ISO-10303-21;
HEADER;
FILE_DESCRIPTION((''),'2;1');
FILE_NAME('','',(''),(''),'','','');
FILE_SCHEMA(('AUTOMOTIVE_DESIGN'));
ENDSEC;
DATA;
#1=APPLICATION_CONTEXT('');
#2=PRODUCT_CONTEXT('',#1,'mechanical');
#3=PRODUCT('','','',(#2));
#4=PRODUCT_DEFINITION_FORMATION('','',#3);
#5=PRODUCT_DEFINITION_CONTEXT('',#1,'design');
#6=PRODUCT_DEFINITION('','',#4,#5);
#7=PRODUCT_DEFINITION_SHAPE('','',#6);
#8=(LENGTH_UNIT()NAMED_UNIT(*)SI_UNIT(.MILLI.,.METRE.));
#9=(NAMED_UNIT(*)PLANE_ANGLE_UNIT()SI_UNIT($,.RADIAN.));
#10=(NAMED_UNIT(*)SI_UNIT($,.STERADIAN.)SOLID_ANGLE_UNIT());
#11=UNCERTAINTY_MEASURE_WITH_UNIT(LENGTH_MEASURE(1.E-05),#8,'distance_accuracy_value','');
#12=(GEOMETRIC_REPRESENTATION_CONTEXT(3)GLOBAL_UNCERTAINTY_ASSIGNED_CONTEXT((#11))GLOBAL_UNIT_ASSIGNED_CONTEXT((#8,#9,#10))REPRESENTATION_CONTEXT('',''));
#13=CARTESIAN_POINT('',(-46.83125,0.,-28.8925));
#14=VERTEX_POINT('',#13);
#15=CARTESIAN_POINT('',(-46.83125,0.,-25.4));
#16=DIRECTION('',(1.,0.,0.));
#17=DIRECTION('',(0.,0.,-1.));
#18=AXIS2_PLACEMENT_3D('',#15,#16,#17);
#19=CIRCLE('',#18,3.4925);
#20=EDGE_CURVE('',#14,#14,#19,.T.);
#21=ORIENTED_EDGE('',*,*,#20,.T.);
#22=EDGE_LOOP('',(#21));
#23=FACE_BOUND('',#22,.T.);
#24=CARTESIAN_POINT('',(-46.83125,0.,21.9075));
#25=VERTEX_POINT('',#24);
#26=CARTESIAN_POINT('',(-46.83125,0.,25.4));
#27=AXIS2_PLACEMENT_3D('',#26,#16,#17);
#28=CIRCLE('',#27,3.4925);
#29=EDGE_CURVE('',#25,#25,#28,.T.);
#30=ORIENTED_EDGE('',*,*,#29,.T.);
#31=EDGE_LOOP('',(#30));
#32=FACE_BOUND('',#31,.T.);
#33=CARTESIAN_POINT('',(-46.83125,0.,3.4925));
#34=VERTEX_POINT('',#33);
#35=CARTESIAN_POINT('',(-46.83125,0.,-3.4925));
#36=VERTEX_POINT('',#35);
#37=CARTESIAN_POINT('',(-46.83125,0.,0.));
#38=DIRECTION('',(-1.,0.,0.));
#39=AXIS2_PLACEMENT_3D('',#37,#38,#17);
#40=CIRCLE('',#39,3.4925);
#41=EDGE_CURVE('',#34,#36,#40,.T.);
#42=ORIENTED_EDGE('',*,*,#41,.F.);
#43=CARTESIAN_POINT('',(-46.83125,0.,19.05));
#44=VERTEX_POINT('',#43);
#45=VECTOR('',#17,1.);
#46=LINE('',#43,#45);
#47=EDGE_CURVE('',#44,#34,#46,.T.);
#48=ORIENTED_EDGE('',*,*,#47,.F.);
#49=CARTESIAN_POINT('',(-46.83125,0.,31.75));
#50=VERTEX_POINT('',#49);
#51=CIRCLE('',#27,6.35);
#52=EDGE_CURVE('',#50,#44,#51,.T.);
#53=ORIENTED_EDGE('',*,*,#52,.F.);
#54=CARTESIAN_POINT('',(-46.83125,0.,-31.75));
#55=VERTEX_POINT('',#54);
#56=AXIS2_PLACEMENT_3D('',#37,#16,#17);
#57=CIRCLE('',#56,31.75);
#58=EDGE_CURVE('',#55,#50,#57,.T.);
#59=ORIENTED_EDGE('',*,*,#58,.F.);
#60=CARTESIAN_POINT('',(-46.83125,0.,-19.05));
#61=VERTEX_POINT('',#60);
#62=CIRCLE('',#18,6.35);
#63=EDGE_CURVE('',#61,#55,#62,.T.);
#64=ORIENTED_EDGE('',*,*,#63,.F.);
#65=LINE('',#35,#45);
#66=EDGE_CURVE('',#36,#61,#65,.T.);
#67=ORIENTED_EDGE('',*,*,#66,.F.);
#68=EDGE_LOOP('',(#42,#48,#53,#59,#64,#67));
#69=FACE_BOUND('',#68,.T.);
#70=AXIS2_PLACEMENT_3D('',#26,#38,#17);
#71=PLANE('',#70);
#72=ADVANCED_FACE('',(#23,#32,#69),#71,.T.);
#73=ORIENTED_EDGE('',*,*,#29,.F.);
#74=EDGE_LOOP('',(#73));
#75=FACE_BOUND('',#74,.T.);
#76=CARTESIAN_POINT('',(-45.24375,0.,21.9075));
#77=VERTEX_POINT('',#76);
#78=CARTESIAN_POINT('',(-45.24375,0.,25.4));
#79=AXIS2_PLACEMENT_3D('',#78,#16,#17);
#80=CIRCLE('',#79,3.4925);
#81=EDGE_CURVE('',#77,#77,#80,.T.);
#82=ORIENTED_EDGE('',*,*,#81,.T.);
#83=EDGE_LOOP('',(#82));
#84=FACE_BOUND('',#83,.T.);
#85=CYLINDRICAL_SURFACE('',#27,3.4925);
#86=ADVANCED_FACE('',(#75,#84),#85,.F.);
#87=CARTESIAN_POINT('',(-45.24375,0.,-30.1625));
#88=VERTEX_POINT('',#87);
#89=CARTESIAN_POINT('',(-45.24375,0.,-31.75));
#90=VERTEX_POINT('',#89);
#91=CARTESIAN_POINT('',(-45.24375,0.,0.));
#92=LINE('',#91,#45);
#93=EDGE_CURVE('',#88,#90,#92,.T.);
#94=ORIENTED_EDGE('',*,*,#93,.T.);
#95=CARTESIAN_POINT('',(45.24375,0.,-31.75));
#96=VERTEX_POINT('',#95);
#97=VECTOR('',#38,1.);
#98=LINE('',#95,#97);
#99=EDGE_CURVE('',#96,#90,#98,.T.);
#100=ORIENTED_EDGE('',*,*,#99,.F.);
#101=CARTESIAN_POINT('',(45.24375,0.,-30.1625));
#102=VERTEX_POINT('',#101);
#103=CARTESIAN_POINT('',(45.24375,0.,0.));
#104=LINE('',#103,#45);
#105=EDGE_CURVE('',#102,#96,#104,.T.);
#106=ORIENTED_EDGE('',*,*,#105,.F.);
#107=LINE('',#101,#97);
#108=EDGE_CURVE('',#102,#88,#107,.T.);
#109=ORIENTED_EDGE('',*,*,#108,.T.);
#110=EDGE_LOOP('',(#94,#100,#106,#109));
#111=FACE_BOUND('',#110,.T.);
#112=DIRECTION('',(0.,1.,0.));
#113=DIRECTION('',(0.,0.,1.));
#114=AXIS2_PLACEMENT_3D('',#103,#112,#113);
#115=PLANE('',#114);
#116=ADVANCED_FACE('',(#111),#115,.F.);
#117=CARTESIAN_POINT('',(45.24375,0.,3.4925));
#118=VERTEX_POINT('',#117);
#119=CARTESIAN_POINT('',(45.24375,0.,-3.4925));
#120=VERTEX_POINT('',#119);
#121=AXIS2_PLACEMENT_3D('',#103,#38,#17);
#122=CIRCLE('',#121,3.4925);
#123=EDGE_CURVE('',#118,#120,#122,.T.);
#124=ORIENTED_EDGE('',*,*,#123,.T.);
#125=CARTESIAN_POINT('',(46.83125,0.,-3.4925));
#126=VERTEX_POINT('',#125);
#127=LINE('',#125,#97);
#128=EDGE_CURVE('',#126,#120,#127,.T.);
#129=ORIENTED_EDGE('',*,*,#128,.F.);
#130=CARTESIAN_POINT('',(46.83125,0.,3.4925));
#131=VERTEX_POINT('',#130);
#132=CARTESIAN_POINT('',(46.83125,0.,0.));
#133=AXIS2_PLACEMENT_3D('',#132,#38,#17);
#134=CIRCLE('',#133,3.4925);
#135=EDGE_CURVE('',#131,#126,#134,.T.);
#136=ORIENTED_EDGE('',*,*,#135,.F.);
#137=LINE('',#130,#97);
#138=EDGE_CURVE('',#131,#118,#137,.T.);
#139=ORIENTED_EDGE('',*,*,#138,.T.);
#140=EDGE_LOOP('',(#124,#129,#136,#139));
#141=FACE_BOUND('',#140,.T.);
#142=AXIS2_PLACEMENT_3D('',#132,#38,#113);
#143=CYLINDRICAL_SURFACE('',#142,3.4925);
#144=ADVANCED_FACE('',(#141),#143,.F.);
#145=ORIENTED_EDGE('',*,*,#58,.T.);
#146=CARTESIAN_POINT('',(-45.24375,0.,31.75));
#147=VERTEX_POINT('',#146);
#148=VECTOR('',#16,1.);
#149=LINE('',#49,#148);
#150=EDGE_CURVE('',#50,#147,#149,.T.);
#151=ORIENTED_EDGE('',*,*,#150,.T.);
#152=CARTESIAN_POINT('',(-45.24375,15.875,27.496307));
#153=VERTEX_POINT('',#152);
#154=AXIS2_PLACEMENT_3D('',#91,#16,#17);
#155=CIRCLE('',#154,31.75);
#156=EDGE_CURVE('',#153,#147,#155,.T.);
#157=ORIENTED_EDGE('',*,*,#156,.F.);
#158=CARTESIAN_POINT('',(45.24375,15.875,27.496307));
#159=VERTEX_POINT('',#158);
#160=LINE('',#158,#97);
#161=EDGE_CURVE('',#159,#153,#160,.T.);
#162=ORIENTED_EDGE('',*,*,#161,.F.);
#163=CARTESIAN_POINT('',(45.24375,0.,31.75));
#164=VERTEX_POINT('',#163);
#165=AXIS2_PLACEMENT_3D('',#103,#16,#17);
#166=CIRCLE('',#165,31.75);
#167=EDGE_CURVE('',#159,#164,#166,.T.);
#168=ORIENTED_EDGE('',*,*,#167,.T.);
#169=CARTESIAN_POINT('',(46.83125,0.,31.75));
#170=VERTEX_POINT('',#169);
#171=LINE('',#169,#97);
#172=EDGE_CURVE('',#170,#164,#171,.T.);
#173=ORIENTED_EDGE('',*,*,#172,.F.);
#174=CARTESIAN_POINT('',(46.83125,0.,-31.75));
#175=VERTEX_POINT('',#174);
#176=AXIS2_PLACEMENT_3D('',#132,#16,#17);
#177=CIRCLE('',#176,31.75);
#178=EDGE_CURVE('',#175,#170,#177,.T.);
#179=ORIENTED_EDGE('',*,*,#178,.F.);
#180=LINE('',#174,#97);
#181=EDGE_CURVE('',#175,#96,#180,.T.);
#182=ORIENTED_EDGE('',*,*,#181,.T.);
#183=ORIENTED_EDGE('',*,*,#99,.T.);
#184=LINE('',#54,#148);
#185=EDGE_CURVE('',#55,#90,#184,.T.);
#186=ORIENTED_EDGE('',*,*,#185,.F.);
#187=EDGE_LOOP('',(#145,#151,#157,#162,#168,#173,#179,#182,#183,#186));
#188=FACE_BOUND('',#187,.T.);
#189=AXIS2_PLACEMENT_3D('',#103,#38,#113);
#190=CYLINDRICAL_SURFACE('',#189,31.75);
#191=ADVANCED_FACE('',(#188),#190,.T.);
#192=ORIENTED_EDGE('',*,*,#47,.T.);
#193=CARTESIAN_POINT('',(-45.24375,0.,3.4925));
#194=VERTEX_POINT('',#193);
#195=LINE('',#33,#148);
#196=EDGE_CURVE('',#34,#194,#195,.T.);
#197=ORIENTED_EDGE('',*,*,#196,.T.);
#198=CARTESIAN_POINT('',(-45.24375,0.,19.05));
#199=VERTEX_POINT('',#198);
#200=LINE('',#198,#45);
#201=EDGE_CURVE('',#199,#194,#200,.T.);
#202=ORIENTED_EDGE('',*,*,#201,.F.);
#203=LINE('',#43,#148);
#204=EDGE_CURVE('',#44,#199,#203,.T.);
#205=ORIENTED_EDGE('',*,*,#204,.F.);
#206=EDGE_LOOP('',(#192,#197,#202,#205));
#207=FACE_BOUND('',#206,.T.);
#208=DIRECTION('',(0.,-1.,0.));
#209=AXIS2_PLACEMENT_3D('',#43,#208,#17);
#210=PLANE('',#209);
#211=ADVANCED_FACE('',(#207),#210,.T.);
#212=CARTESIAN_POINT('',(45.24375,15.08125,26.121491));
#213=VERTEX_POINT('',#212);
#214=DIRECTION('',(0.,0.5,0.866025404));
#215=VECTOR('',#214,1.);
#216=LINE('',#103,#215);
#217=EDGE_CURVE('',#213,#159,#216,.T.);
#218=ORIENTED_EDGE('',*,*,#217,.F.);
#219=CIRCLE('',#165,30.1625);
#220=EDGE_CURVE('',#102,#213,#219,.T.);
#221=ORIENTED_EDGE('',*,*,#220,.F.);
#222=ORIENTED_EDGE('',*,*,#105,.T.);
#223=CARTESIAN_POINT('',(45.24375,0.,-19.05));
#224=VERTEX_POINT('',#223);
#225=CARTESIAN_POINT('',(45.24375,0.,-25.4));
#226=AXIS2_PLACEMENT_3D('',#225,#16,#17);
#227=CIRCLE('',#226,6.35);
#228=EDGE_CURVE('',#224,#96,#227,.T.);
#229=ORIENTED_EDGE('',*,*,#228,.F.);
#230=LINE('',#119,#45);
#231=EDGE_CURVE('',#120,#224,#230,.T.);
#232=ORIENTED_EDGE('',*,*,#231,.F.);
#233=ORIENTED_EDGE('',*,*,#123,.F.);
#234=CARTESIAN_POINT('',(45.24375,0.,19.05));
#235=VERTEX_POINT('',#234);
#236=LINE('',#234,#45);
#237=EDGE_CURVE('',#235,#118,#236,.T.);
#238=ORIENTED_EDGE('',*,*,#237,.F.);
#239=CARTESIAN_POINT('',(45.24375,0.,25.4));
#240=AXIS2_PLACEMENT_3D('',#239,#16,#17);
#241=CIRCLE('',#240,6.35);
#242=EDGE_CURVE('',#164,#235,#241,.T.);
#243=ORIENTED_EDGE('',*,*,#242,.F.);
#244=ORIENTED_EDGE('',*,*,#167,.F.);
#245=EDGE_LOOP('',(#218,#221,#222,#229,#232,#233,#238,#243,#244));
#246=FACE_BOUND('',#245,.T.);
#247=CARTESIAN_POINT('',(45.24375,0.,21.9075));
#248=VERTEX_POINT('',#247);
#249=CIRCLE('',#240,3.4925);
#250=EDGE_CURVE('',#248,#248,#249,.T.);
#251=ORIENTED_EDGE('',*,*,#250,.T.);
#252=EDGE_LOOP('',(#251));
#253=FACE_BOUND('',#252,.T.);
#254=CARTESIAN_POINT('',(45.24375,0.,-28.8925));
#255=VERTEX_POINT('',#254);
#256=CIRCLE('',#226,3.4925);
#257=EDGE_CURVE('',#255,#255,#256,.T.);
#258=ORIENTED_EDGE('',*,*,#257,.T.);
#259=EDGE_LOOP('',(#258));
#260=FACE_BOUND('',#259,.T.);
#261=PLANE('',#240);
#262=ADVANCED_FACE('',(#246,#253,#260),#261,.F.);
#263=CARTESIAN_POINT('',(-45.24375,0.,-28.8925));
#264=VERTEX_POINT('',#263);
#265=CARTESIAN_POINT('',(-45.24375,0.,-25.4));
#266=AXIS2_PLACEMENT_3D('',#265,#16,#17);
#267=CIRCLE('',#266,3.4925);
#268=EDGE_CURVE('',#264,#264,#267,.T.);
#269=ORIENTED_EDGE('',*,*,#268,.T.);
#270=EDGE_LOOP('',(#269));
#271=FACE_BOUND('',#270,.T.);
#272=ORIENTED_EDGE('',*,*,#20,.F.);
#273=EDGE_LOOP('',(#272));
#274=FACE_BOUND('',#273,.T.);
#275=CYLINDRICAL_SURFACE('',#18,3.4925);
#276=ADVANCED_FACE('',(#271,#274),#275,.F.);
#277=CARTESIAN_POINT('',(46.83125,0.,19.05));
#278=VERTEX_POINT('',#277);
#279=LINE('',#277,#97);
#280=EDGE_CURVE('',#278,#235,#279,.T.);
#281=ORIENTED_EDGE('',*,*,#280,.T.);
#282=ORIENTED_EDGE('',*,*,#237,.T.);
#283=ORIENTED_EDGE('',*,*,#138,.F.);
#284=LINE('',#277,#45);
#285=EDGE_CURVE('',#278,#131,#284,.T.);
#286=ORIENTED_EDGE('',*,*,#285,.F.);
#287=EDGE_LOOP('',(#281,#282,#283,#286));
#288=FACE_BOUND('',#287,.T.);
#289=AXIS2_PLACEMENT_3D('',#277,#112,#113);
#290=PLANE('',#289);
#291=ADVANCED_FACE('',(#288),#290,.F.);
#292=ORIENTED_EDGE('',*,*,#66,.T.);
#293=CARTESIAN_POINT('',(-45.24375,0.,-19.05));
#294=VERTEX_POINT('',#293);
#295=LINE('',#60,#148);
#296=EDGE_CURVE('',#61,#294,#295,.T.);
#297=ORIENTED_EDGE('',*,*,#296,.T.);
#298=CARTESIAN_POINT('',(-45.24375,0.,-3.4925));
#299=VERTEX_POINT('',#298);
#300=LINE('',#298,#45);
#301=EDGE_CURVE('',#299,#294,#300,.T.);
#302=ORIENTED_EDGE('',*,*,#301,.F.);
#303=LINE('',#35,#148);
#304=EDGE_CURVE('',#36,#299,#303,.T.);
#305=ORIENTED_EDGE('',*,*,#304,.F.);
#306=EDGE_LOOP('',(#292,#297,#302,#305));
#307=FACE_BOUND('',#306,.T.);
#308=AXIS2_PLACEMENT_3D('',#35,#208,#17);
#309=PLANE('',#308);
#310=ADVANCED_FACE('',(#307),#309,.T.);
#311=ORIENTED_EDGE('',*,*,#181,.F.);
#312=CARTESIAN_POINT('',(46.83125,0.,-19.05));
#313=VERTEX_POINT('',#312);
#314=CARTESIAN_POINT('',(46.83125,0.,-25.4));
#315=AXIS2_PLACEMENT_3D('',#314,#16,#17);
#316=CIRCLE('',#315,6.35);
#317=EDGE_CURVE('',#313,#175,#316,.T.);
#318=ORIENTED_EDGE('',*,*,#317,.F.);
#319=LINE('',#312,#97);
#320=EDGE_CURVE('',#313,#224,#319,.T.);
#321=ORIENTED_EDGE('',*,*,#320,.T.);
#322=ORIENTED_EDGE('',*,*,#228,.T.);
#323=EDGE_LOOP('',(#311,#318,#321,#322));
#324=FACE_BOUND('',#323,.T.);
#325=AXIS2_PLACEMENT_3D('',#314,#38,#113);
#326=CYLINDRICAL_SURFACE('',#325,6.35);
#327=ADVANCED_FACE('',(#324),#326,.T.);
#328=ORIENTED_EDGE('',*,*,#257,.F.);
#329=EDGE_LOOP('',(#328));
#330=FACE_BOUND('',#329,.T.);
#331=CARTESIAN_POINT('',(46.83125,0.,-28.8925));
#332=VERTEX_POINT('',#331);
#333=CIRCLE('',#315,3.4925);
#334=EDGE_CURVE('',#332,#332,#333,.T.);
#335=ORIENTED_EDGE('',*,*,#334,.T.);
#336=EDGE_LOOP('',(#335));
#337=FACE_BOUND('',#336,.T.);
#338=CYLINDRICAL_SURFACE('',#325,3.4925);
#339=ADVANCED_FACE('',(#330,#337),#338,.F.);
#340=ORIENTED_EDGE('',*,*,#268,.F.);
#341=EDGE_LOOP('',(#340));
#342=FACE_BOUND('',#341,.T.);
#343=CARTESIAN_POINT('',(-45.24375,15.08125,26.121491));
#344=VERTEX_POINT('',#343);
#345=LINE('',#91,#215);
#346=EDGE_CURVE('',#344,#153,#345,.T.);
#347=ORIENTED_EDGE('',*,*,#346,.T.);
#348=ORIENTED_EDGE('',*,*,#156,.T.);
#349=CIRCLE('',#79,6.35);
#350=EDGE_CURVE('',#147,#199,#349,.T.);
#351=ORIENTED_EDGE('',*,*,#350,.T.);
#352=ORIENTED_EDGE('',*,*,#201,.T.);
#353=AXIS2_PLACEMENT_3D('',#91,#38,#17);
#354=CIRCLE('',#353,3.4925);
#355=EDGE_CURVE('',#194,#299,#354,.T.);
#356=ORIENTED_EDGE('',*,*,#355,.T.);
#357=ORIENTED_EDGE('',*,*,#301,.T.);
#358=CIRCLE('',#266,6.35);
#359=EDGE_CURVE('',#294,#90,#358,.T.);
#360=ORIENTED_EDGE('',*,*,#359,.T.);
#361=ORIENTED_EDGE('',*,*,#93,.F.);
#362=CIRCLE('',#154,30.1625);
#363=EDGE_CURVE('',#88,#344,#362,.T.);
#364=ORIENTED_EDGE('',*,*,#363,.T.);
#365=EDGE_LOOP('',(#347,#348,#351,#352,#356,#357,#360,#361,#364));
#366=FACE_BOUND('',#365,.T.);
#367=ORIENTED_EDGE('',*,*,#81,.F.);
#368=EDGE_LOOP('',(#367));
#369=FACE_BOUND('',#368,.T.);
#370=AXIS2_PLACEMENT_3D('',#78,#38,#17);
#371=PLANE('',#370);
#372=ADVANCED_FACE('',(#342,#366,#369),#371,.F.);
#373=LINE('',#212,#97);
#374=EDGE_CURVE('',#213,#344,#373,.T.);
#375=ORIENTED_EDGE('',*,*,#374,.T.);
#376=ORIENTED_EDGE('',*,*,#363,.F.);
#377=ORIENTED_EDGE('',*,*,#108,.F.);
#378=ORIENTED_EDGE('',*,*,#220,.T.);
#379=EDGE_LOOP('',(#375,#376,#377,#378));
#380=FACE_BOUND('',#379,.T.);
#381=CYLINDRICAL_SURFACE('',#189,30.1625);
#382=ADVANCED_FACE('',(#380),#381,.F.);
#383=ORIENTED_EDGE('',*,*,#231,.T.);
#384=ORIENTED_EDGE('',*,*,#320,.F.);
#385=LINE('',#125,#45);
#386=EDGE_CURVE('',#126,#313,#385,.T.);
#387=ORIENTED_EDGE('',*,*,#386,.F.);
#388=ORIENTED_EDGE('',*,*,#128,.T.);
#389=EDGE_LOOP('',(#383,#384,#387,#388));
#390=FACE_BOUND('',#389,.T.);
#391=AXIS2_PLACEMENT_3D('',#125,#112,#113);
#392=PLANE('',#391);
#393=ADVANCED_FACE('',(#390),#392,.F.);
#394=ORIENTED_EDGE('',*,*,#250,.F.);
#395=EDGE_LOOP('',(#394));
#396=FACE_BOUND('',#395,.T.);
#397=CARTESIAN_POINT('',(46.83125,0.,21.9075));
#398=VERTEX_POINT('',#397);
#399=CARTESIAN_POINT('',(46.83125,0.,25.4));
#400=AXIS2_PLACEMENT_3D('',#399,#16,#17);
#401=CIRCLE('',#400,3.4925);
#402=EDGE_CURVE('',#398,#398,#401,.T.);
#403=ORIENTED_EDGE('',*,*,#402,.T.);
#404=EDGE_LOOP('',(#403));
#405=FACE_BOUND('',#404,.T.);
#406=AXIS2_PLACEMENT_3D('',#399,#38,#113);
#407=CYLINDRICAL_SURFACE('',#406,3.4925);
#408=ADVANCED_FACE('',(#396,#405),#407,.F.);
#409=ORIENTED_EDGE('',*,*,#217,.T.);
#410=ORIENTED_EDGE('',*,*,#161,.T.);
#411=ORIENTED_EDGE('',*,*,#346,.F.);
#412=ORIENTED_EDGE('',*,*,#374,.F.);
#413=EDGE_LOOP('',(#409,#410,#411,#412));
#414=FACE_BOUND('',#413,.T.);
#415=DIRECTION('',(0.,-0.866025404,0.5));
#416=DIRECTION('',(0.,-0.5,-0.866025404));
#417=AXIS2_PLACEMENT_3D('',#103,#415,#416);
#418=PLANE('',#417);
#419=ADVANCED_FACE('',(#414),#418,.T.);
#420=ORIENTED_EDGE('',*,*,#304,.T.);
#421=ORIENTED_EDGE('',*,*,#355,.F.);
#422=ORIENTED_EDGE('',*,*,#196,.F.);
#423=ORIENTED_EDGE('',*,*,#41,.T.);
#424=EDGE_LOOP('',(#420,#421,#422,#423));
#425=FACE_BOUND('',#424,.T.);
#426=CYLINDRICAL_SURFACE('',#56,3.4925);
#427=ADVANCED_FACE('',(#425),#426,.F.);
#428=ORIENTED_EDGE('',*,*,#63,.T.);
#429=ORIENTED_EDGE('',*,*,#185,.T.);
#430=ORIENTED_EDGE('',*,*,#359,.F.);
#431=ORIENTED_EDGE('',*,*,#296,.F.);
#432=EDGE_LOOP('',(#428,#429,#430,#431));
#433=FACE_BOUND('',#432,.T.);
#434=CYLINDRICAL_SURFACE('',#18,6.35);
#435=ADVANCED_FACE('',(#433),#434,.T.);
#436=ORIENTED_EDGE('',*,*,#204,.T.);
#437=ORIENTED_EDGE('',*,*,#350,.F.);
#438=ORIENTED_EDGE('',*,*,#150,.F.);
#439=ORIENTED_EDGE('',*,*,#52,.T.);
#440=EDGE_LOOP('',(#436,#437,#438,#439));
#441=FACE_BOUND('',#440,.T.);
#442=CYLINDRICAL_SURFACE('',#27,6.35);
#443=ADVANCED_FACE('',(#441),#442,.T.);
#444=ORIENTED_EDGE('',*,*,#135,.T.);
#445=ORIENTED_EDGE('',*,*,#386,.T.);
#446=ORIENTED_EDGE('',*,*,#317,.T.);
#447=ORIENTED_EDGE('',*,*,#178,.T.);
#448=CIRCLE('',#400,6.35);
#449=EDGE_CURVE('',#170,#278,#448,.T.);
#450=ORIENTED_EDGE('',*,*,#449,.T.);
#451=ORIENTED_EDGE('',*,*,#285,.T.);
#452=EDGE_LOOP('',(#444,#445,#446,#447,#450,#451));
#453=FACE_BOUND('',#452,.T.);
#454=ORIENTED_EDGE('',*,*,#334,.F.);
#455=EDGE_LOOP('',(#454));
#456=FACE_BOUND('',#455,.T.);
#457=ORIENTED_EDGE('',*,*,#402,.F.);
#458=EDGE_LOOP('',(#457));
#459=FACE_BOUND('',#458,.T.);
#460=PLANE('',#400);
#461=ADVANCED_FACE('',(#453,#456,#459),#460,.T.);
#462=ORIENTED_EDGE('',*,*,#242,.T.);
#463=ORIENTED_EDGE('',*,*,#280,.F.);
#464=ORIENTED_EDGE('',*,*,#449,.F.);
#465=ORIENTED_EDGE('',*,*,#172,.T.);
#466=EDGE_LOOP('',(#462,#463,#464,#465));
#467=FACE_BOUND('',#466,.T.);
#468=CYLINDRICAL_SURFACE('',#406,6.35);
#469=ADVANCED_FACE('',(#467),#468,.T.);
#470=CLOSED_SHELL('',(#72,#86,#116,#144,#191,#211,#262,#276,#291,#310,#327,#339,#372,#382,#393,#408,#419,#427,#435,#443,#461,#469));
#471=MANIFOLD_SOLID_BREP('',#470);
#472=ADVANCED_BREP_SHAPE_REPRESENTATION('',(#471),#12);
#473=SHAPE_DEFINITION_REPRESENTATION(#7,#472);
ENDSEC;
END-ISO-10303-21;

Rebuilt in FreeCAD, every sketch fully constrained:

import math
import FreeCAD as App
import Part
import Sketcher
Q = App.Units.Quantity

doc = App.newDocument("Part")
body = doc.addObject("PartDesign::Body", "Body")

# Sketch on YZ plane
sketch1 = body.newObject("Sketcher::SketchObject", "Sketch")
sketch1.AttachmentSupport = (doc.getObject("YZ_Plane"), [""])
sketch1.MapMode = "FlatFace"
sketch1.addGeometry(Part.ArcOfCircle(Part.Circle(App.Vector(0, 0, 0), App.Vector(0, 0, 1), 30.2), math.radians(-90), math.radians(60)), False)
sketch1.addGeometry(Part.LineSegment(App.Vector(0, -30.2, 0), App.Vector(0, -31.8, 0)), False)
sketch1.addGeometry(Part.ArcOfCircle(Part.Circle(App.Vector(0, 0, 0), App.Vector(0, 0, 1), 31.8), math.radians(-90), math.radians(60)), False)
sketch1.addGeometry(Part.LineSegment(App.Vector(15.9, 27.5, 0), App.Vector(15.1, 26.1, 0)), False)
sketch1.addConstraint(Sketcher.Constraint("Coincident", 0, 1, 1, 1))
sketch1.addConstraint(Sketcher.Constraint("Coincident", 1, 2, 2, 1))
sketch1.addConstraint(Sketcher.Constraint("Coincident", 2, 2, 3, 1))
sketch1.addConstraint(Sketcher.Constraint("Coincident", 3, 2, 0, 2))
sketch1.addConstraint(Sketcher.Constraint("Vertical", 1))
sketch1.addConstraint(Sketcher.Constraint("Coincident", 0, 3, -1, 1))
sketch1.addConstraint(Sketcher.Constraint("Coincident", 2, 3, -1, 1))
sketch1.addConstraint(Sketcher.Constraint("PointOnObject", 0, 1, -2))
sketch1.addConstraint(Sketcher.Constraint("Radius", 2, Q("1.25 in")))
sketch1.addConstraint(Sketcher.Constraint("Angle", 3, Q("-120 deg")))
sketch1.addConstraint(Sketcher.Constraint("Radius", 0, Q("1.1875 in")))
sketch1.addConstraint(Sketcher.Constraint("DistanceX", -1, 1, 2, 2, Q("0.625 in")))
pad1 = body.newObject("PartDesign::Pad", "Pad")
pad1.Profile = sketch1
pad1.Length = Q("3.5625 in")
pad1.Midplane = True

# Sketch on YZ plane
sketch2 = body.newObject("Sketcher::SketchObject", "Sketch001")
sketch2.AttachmentSupport = (doc.getObject("YZ_Plane"), [""])
sketch2.MapMode = "FlatFace"
sketch2.AttachmentOffset = App.Placement(App.Vector(0, 0, 1.78125 * 25.4), App.Rotation())
sketch2.addGeometry(Part.LineSegment(App.Vector(0, 19.1, 0), App.Vector(0, 3.5, 0)), False)
sketch2.addGeometry(Part.ArcOfCircle(Part.Circle(App.Vector(0, 0, 0), App.Vector(0, 0, 1), 3.5), math.radians(-90), math.radians(90)), False)
sketch2.addGeometry(Part.LineSegment(App.Vector(0, -3.5, 0), App.Vector(0, -19.1, 0)), False)
sketch2.addGeometry(Part.ArcOfCircle(Part.Circle(App.Vector(0, -25.4, 0), App.Vector(0, 0, 1), 6.3), math.radians(90), math.radians(270)), False)
sketch2.addGeometry(Part.ArcOfCircle(Part.Circle(App.Vector(0, 0, 0), App.Vector(0, 0, 1), 31.8), math.radians(-90), math.radians(90)), False)
sketch2.addGeometry(Part.ArcOfCircle(Part.Circle(App.Vector(0, 25.4, 0), App.Vector(0, 0, 1), 6.3), math.radians(90), math.radians(270)), False)
sketch2.addGeometry(Part.Circle(App.Vector(0, 25.4, 0), App.Vector(0, 0, 1), 3.5), False)
sketch2.addGeometry(Part.Circle(App.Vector(0, -25.4, 0), App.Vector(0, 0, 1), 3.5), False)
sketch2.addConstraint(Sketcher.Constraint("Coincident", 0, 2, 1, 2))
sketch2.addConstraint(Sketcher.Constraint("Coincident", 1, 1, 2, 1))
sketch2.addConstraint(Sketcher.Constraint("Coincident", 2, 2, 3, 1))
sketch2.addConstraint(Sketcher.Constraint("Tangent", 3, 2, 4, 1))
sketch2.addConstraint(Sketcher.Constraint("Tangent", 4, 2, 5, 1))
sketch2.addConstraint(Sketcher.Constraint("Coincident", 5, 2, 0, 1))
sketch2.addConstraint(Sketcher.Constraint("Vertical", 0))
sketch2.addConstraint(Sketcher.Constraint("Vertical", 2))
sketch2.addConstraint(Sketcher.Constraint("Coincident", 1, 3, -1, 1))
sketch2.addConstraint(Sketcher.Constraint("Coincident", 4, 3, -1, 1))
sketch2.addConstraint(Sketcher.Constraint("Coincident", 6, 3, 5, 3))
sketch2.addConstraint(Sketcher.Constraint("Coincident", 7, 3, 3, 3))
sketch2.addConstraint(Sketcher.Constraint("Equal", 3, 5))
sketch2.addConstraint(Sketcher.Constraint("Equal", 1, 6))
sketch2.addConstraint(Sketcher.Constraint("Equal", 6, 7))
sketch2.addConstraint(Sketcher.Constraint("PointOnObject", 3, 3, -2))
sketch2.addConstraint(Sketcher.Constraint("PointOnObject", 5, 3, -2))
sketch2.addConstraint(Sketcher.Constraint("PointOnObject", 0, 2, -2))
sketch2.addConstraint(Sketcher.Constraint("PointOnObject", 1, 1, -2))
sketch2.addConstraint(Sketcher.Constraint("Radius", 3, Q("0.25 in")))
sketch2.addConstraint(Sketcher.Constraint("Radius", 4, Q("1.25 in")))
sketch2.addConstraint(Sketcher.Constraint("Diameter", 6, Q("0.275 in")))
pad2 = body.newObject("PartDesign::Pad", "Pad001")
pad2.Profile = sketch2
pad2.Length = Q("0.0625 in")
doc.recompute()

mirrored = body.newObject("PartDesign::Mirrored", "Mirrored")
mirrored.Originals = [pad2]
mirrored.MirrorPlane = (doc.getObject("YZ_Plane"), [""])
body.Tip = mirrored

doc.recompute()
